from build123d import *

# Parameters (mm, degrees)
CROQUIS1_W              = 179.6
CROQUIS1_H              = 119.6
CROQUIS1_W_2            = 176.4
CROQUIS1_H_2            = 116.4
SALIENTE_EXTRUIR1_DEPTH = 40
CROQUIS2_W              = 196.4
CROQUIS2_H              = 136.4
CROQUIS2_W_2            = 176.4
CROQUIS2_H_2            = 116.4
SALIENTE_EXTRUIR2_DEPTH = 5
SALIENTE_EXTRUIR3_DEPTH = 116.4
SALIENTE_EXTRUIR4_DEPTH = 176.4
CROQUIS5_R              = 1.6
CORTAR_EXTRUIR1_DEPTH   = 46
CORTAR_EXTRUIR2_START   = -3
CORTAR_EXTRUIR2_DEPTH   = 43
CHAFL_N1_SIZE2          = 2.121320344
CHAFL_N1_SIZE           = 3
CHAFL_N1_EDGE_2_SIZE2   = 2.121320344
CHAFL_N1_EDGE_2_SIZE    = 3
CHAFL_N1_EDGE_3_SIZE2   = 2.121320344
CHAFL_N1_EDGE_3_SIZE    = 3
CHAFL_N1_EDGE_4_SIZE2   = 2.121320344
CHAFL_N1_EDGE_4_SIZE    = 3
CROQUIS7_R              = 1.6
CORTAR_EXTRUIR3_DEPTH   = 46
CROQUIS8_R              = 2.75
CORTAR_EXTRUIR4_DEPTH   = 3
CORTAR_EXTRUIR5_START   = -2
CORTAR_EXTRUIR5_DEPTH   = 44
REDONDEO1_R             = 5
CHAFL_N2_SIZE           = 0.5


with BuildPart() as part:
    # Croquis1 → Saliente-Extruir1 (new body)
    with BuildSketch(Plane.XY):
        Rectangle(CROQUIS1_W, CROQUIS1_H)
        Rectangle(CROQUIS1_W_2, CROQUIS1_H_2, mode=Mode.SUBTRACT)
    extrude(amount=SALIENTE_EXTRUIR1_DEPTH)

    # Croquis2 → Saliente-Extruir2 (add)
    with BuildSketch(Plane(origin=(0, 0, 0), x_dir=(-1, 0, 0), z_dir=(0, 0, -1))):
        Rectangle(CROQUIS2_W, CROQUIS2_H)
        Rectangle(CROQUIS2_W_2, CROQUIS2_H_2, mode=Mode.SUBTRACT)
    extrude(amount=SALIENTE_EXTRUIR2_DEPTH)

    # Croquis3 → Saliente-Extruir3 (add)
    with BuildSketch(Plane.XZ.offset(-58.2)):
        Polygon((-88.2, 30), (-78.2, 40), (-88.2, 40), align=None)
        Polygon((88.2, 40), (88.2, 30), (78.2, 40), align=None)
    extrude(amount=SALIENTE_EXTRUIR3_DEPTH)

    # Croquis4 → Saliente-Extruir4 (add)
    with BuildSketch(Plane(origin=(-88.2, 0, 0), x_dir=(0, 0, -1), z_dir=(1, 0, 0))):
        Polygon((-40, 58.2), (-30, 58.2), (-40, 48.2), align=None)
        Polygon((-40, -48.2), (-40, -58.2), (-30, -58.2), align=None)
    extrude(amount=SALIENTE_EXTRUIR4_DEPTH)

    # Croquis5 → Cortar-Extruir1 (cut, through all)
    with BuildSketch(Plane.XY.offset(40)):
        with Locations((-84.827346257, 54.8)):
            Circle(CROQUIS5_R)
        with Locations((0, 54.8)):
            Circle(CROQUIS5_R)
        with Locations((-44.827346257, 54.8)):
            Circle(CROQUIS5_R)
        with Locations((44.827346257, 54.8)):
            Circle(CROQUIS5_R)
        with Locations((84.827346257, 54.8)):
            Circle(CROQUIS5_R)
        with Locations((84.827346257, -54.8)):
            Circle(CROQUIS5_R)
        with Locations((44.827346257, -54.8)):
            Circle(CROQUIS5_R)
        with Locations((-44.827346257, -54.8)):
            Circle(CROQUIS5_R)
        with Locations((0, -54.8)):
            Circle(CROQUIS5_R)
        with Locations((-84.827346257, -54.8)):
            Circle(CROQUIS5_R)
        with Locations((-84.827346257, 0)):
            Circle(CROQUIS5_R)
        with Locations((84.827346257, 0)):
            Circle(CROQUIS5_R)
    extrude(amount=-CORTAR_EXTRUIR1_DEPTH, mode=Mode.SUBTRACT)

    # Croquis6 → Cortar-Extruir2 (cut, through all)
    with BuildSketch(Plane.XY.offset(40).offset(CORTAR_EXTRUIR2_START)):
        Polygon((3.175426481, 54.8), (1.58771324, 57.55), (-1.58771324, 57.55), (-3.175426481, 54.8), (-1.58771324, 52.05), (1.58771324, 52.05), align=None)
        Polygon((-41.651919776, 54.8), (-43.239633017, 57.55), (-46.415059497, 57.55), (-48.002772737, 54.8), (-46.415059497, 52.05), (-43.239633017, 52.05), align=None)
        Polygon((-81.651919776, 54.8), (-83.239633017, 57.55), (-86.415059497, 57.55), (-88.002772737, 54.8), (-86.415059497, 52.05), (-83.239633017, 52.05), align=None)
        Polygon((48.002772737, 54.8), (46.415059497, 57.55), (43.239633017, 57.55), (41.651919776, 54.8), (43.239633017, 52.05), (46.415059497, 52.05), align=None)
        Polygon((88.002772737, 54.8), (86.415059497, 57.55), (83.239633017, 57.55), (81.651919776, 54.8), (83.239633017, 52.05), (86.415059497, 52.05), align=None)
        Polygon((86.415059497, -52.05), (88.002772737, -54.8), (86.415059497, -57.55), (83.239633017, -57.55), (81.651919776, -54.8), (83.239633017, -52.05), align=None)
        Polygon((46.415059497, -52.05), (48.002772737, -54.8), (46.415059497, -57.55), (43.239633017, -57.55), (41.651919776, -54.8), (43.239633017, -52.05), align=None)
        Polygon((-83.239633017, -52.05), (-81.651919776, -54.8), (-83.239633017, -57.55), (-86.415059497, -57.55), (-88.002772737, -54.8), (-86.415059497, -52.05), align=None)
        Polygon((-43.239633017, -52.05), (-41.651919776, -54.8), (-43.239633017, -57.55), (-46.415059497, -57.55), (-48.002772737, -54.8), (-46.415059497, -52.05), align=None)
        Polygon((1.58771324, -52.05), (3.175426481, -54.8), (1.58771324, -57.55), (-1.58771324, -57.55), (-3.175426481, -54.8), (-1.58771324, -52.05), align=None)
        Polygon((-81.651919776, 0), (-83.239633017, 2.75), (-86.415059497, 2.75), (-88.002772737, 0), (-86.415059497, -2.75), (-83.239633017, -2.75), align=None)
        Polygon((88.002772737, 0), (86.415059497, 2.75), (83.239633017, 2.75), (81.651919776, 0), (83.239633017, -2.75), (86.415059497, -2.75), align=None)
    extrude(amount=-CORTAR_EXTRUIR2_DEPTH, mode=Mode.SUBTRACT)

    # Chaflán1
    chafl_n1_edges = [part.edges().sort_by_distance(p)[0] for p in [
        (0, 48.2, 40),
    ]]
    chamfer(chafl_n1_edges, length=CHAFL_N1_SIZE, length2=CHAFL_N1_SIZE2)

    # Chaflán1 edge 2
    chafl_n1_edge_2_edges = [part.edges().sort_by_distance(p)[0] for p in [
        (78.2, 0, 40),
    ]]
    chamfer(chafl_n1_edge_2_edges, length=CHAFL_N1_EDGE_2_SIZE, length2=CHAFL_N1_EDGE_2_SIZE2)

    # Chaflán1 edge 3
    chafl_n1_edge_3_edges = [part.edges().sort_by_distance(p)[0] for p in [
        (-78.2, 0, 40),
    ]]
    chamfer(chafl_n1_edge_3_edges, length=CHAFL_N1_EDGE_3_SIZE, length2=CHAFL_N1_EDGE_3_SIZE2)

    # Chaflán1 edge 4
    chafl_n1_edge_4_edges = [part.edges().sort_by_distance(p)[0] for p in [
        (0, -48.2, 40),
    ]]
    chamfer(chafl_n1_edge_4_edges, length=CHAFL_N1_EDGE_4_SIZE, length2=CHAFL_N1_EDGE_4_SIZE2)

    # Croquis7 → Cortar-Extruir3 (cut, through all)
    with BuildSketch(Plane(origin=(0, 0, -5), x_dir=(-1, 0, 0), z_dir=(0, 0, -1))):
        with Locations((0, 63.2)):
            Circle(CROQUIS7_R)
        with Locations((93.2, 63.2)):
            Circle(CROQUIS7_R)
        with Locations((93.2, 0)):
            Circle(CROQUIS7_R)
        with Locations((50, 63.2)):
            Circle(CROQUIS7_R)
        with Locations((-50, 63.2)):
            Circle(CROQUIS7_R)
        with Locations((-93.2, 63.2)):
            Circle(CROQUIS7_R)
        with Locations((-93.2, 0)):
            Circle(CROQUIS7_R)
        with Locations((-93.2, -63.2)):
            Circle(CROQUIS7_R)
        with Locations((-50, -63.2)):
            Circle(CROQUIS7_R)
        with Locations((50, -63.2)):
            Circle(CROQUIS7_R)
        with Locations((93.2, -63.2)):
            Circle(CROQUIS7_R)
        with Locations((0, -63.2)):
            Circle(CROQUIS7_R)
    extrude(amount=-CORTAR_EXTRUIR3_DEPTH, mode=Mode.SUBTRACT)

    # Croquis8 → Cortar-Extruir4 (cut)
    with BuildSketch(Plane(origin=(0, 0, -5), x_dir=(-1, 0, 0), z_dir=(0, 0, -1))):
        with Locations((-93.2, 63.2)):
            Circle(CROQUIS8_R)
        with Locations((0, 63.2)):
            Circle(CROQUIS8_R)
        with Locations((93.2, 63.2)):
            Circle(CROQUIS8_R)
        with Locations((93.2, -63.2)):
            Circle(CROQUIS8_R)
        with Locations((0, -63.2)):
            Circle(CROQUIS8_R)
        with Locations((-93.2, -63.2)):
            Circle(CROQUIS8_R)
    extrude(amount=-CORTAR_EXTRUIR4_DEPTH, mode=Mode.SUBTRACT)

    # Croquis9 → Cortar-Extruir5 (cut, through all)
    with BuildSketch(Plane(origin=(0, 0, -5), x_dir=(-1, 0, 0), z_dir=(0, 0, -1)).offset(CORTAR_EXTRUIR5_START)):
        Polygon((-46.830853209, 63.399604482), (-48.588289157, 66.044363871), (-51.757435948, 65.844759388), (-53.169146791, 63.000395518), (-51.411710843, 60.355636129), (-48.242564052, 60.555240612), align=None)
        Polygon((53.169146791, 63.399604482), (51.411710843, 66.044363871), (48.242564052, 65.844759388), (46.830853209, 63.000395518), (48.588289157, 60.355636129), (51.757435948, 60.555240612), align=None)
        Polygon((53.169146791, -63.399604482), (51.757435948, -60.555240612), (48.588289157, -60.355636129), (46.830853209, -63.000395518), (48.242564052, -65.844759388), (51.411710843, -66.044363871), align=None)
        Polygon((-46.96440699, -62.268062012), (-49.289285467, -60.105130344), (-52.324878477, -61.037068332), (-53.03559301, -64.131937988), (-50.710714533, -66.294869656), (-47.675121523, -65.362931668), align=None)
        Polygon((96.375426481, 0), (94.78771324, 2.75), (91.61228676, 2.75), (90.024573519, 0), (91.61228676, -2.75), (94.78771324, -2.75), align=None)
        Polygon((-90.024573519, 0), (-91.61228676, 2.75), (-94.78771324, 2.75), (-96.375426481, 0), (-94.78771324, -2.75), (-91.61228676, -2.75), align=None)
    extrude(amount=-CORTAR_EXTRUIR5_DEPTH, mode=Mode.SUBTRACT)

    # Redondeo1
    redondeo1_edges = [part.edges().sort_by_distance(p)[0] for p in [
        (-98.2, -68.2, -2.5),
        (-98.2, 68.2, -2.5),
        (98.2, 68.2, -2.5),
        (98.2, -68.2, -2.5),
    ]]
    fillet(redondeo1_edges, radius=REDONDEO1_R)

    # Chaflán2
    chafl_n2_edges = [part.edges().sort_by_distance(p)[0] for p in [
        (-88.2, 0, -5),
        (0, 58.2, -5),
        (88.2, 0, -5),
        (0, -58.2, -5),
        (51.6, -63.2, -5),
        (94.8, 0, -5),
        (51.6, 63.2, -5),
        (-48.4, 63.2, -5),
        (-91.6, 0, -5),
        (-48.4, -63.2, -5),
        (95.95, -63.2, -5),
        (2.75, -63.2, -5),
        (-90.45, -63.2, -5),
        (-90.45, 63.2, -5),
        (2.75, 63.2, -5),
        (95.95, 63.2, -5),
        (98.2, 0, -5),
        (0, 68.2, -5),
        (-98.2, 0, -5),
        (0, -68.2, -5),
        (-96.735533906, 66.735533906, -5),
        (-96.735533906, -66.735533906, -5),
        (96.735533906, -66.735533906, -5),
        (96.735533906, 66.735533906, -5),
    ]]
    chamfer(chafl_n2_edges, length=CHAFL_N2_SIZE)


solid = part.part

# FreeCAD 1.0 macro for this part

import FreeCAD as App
import Part
import Sketcher

V = App.Vector
Q = App.Units.Quantity


def edges_at(feature, points):
    """Names of the edges that pass closest to the given points."""
    edges = feature.Shape.Edges
    near = lambda p: min(range(len(edges)), key=lambda i: edges[i].distToShape(Part.Vertex(*p))[0])
    return sorted({f"Edge{near(p) + 1}" for p in points})

doc = App.newDocument("Part")
params = doc.addObject("Spreadsheet::Sheet", "Params")
for row, (alias, value) in enumerate([
    ("sketch1_width", "179.6 mm"),
    ("sketch1_width2", "176.4 mm"),
    ("sketch1_height", "119.6 mm"),
    ("sketch1_height2", "116.4 mm"),
    ("pad1_length", "40 mm"),
    ("sketch2_width", "196.4 mm"),
    ("sketch2_width2", "176.4 mm"),
    ("sketch2_height", "136.4 mm"),
    ("sketch2_height2", "116.4 mm"),
    ("pad2_length", "5 mm"),
    ("sketch3_width", "10 mm"),
    ("pad3_length", "116.4 mm"),
    ("sketch4_width", "10 mm"),
    ("pad4_length", "176.4 mm"),
    ("sketch5_diameter", "3.2 mm"),
    ("chamfer_size", "3 mm"),
    ("chamfer_size2", "2.12132 mm"),
    ("chamfer2_size", "3 mm"),
    ("chamfer2_size2", "2.12132 mm"),
    ("chamfer3_size", "3 mm"),
    ("chamfer3_size2", "2.12132 mm"),
    ("chamfer4_size", "3 mm"),
    ("chamfer4_size2", "2.12132 mm"),
    ("sketch7_diameter", "3.2 mm"),
    ("sketch8_diameter", "5.5 mm"),
    ("pocket4_length", "3 mm"),
    ("fillet_radius", "5 mm"),
    ("chamfer5_size", "0.5 mm"),
], start=1):
    params.set(f"A{row}", alias)
    params.set(f"B{row}", "=" + value)
    params.setAlias(f"B{row}", alias)

body = doc.addObject("PartDesign::Body", "Body")

# Sketch on XY plane
sketch1 = body.newObject("Sketcher::SketchObject", "Sketch")
sketch1.AttachmentSupport = (doc.getObject("XY_Plane"), [""])
sketch1.MapMode = "FlatFace"
sketch1.addGeometry([
    Part.LineSegment(V(-90, 60, 0), V(-90, -60, 0)),  # 0
    Part.LineSegment(V(-90, -60, 0), V(90, -60, 0)),  # 1
    Part.LineSegment(V(90, -60, 0), V(90, 60, 0)),  # 2
    Part.LineSegment(V(90, 60, 0), V(-90, 60, 0)),  # 3
    Part.LineSegment(V(88, -58, 0), V(-88, -58, 0)),  # 4
    Part.LineSegment(V(-88, -58, 0), V(-88, 58, 0)),  # 5
    Part.LineSegment(V(-88, 58, 0), V(88, 58, 0)),  # 6
    Part.LineSegment(V(88, 58, 0), V(88, -58, 0)),  # 7
], False)
sketch1.addConstraint([
    Sketcher.Constraint("Coincident", 0, 2, 1, 1),
    Sketcher.Constraint("Coincident", 1, 2, 2, 1),
    Sketcher.Constraint("Coincident", 2, 2, 3, 1),
    Sketcher.Constraint("Coincident", 3, 2, 0, 1),
    Sketcher.Constraint("Coincident", 4, 2, 5, 1),
    Sketcher.Constraint("Coincident", 5, 2, 6, 1),
    Sketcher.Constraint("Coincident", 6, 2, 7, 1),
    Sketcher.Constraint("Coincident", 7, 2, 4, 1),
    Sketcher.Constraint("Vertical", 0),
    Sketcher.Constraint("Horizontal", 1),
    Sketcher.Constraint("Vertical", 2),
    Sketcher.Constraint("Horizontal", 3),
    Sketcher.Constraint("Horizontal", 4),
    Sketcher.Constraint("Vertical", 5),
    Sketcher.Constraint("Horizontal", 6),
    Sketcher.Constraint("Vertical", 7),
    Sketcher.Constraint("Symmetric", 0, 2, 2, 2, -1, 1),
    Sketcher.Constraint("Symmetric", 4, 2, 6, 2, -1, 1),
    Sketcher.Constraint("DistanceX", 1, 1, 1, 2, 179.6),
    Sketcher.Constraint("DistanceX", 4, 2, 4, 1, 176.4),
    Sketcher.Constraint("DistanceY", 0, 2, 0, 1, 119.6),
    Sketcher.Constraint("DistanceY", 5, 1, 5, 2, 116.4),
])
sketch1.setExpression("Constraints[18]", "Params.sketch1_width")
sketch1.setExpression("Constraints[19]", "Params.sketch1_width2")
sketch1.setExpression("Constraints[20]", "Params.sketch1_height")
sketch1.setExpression("Constraints[21]", "Params.sketch1_height2")
pad1 = body.newObject("PartDesign::Pad", "Pad")
pad1.Profile = sketch1
pad1.setExpression("Length", "Params.pad1_length")

# Sketch on XY plane
sketch2 = body.newObject("Sketcher::SketchObject", "Sketch001")
sketch2.AttachmentSupport = (doc.getObject("XY_Plane"), [""])
sketch2.MapMode = "FlatFace"
sketch2.addGeometry([
    Part.LineSegment(V(98, 68, 0), V(98, -68, 0)),  # 0
    Part.LineSegment(V(98, -68, 0), V(-98, -68, 0)),  # 1
    Part.LineSegment(V(-98, -68, 0), V(-98, 68, 0)),  # 2
    Part.LineSegment(V(-98, 68, 0), V(98, 68, 0)),  # 3
    Part.LineSegment(V(-88, -58, 0), V(88, -58, 0)),  # 4
    Part.LineSegment(V(88, -58, 0), V(88, 58, 0)),  # 5
    Part.LineSegment(V(88, 58, 0), V(-88, 58, 0)),  # 6
    Part.LineSegment(V(-88, 58, 0), V(-88, -58, 0)),  # 7
], False)
sketch2.addConstraint([
    Sketcher.Constraint("Coincident", 0, 2, 1, 1),
    Sketcher.Constraint("Coincident", 1, 2, 2, 1),
    Sketcher.Constraint("Coincident", 2, 2, 3, 1),
    Sketcher.Constraint("Coincident", 3, 2, 0, 1),
    Sketcher.Constraint("Coincident", 4, 2, 5, 1),
    Sketcher.Constraint("Coincident", 5, 2, 6, 1),
    Sketcher.Constraint("Coincident", 6, 2, 7, 1),
    Sketcher.Constraint("Coincident", 7, 2, 4, 1),
    Sketcher.Constraint("Vertical", 0),
    Sketcher.Constraint("Horizontal", 1),
    Sketcher.Constraint("Vertical", 2),
    Sketcher.Constraint("Horizontal", 3),
    Sketcher.Constraint("Horizontal", 4),
    Sketcher.Constraint("Vertical", 5),
    Sketcher.Constraint("Horizontal", 6),
    Sketcher.Constraint("Vertical", 7),
    Sketcher.Constraint("Symmetric", 0, 2, 2, 2, -1, 1),
    Sketcher.Constraint("Symmetric", 4, 2, 6, 2, -1, 1),
    Sketcher.Constraint("DistanceX", 1, 2, 1, 1, 196.4),
    Sketcher.Constraint("DistanceX", 4, 1, 4, 2, 176.4),
    Sketcher.Constraint("DistanceY", 0, 2, 0, 1, 136.4),
    Sketcher.Constraint("DistanceY", 5, 1, 5, 2, 116.4),
])
sketch2.setExpression("Constraints[18]", "Params.sketch2_width")
sketch2.setExpression("Constraints[19]", "Params.sketch2_width2")
sketch2.setExpression("Constraints[20]", "Params.sketch2_height")
sketch2.setExpression("Constraints[21]", "Params.sketch2_height2")
pad2 = body.newObject("PartDesign::Pad", "Pad001")
pad2.Profile = sketch2
pad2.setExpression("Length", "Params.pad2_length")
pad2.Reversed = True

# Sketch on XZ plane
sketch3 = body.newObject("Sketcher::SketchObject", "Sketch002")
sketch3.AttachmentSupport = (doc.getObject("XZ_Plane"), [""])
sketch3.MapMode = "FlatFace"
sketch3.AttachmentOffset = App.Placement(V(0, 0, -58.2), App.Rotation())
sketch3.addGeometry([
    Part.LineSegment(V(-88, 30, 0), V(-78, 40, 0)),  # 0
    Part.LineSegment(V(-78, 40, 0), V(-88, 40, 0)),  # 1
    Part.LineSegment(V(-88, 40, 0), V(-88, 30, 0)),  # 2
    Part.LineSegment(V(88, 30, 0), V(88, 40, 0)),  # 3
    Part.LineSegment(V(88, 40, 0), V(78, 40, 0)),  # 4
    Part.LineSegment(V(78, 40, 0), V(88, 30, 0)),  # 5
], False)
sketch3.addConstraint([
    Sketcher.Constraint("Coincident", 0, 2, 1, 1),
    Sketcher.Constraint("Coincident", 1, 2, 2, 1),
    Sketcher.Constraint("Coincident", 2, 2, 0, 1),
    Sketcher.Constraint("Coincident", 3, 2, 4, 1),
    Sketcher.Constraint("Coincident", 4, 2, 5, 1),
    Sketcher.Constraint("Coincident", 5, 2, 3, 1),
    Sketcher.Constraint("Horizontal", 1),
    Sketcher.Constraint("Vertical", 2),
    Sketcher.Constraint("Vertical", 3),
    Sketcher.Constraint("Horizontal", 4),
    Sketcher.Constraint("Symmetric", 1, 2, 3, 2, -2),
    Sketcher.Constraint("Perpendicular", 0, 5),
    Sketcher.Constraint("Horizontal", 2, 2, 5, 2),
    Sketcher.Constraint("Equal", 1, 4),
    Sketcher.Constraint("DistanceX", 1, 2, 1, 1, 10.0),
    Sketcher.Constraint("DistanceY", -1, 1, 0, 2, 40.0),
    Sketcher.Constraint("DistanceX", 0, 2, -1, 1, 78.2),
])
sketch3.setExpression("Constraints[14]", "Params.sketch3_width")
pad3 = body.newObject("PartDesign::Pad", "Pad002")
pad3.Profile = sketch3
pad3.setExpression("Length", "Params.pad3_length")

# Sketch on YZ plane
sketch4 = body.newObject("Sketcher::SketchObject", "Sketch003")
sketch4.AttachmentSupport = (doc.getObject("YZ_Plane"), [""])
sketch4.MapMode = "FlatFace"
sketch4.AttachmentOffset = App.Placement(V(0, 0, -88.2), App.Rotation())
sketch4.addGeometry([
    Part.LineSegment(V(58, 30, 0), V(58, 40, 0)),  # 0
    Part.LineSegment(V(58, 40, 0), V(48, 40, 0)),  # 1
    Part.LineSegment(V(48, 40, 0), V(58, 30, 0)),  # 2
    Part.LineSegment(V(-48, 40, 0), V(-58, 40, 0)),  # 3
    Part.LineSegment(V(-58, 40, 0), V(-58, 30, 0)),  # 4
    Part.LineSegment(V(-58, 30, 0), V(-48, 40, 0)),  # 5
], False)
sketch4.addConstraint([
    Sketcher.Constraint("Coincident", 0, 2, 1, 1),
    Sketcher.Constraint("Coincident", 1, 2, 2, 1),
    Sketcher.Constraint("Coincident", 2, 2, 0, 1),
    Sketcher.Constraint("Coincident", 3, 2, 4, 1),
    Sketcher.Constraint("Coincident", 4, 2, 5, 1),
    Sketcher.Constraint("Coincident", 5, 2, 3, 1),
    Sketcher.Constraint("Vertical", 0),
    Sketcher.Constraint("Horizontal", 1),
    Sketcher.Constraint("Horizontal", 3),
    Sketcher.Constraint("Vertical", 4),
    Sketcher.Constraint("Symmetric", 0, 2, 3, 2, -2),
    Sketcher.Constraint("Perpendicular", 2, 5),
    Sketcher.Constraint("Horizontal", 2, 2, 4, 2),
    Sketcher.Constraint("Equal", 1, 3),
    Sketcher.Constraint("DistanceX", 1, 2, 1, 1, 10.0),
    Sketcher.Constraint("DistanceY", -1, 1, 0, 2, 40.0),
    Sketcher.Constraint("DistanceX", -1, 1, 0, 2, 58.2),
])
sketch4.setExpression("Constraints[14]", "Params.sketch4_width")
pad4 = body.newObject("PartDesign::Pad", "Pad003")
pad4.Profile = sketch4
pad4.setExpression("Length", "Params.pad4_length")

# Sketch on XY plane
sketch5 = body.newObject("Sketcher::SketchObject", "Sketch004")
sketch5.AttachmentSupport = (doc.getObject("XY_Plane"), [""])
sketch5.MapMode = "FlatFace"
sketch5.AttachmentOffset = App.Placement(V(0, 0, 40), App.Rotation())
sketch5.addGeometry([
    Part.Circle(V(-84.8, 54.8, 0), V(0, 0, 1), 1.6),  # 0
    Part.Circle(V(0, 54.8, 0), V(0, 0, 1), 1.6),  # 1
    Part.Circle(V(-44.8, 54.8, 0), V(0, 0, 1), 1.6),  # 2
    Part.Circle(V(44.8, 54.8, 0), V(0, 0, 1), 1.6),  # 3
    Part.Circle(V(84.8, 54.8, 0), V(0, 0, 1), 1.6),  # 4
    Part.Circle(V(84.8, -54.8, 0), V(0, 0, 1), 1.6),  # 5
    Part.Circle(V(44.8, -54.8, 0), V(0, 0, 1), 1.6),  # 6
    Part.Circle(V(-44.8, -54.8, 0), V(0, 0, 1), 1.6),  # 7
    Part.Circle(V(0, -54.8, 0), V(0, 0, 1), 1.6),  # 8
    Part.Circle(V(-84.8, -54.8, 0), V(0, 0, 1), 1.6),  # 9
    Part.Circle(V(-84.8, 0, 0), V(0, 0, 1), 1.6),  # 10
    Part.Circle(V(84.8, 0, 0), V(0, 0, 1), 1.6),  # 11
], False)
sketch5.addConstraint([
    Sketcher.Constraint("Equal", 0, 1),
    Sketcher.Constraint("Equal", 1, 2),
    Sketcher.Constraint("Equal", 2, 3),
    Sketcher.Constraint("Equal", 3, 4),
    Sketcher.Constraint("Equal", 4, 5),
    Sketcher.Constraint("Equal", 5, 6),
    Sketcher.Constraint("Equal", 6, 7),
    Sketcher.Constraint("Equal", 7, 8),
    Sketcher.Constraint("Equal", 8, 9),
    Sketcher.Constraint("Equal", 9, 10),
    Sketcher.Constraint("Equal", 10, 11),
    Sketcher.Constraint("Symmetric", 0, 3, 5, 3, -1, 1),
    Sketcher.Constraint("Symmetric", 2, 3, 6, 3, -1, 1),
    Sketcher.Constraint("Symmetric", 3, 3, 7, 3, -1, 1),
    Sketcher.Constraint("Symmetric", 1, 3, 8, 3, -1, 1),
    Sketcher.Constraint("Symmetric", 4, 3, 9, 3, -1, 1),
    Sketcher.Constraint("Symmetric", 10, 3, 11, 3, -1, 1),
    Sketcher.Constraint("Symmetric", 2, 3, 3, 3, -2),
    Sketcher.Constraint("Symmetric", 0, 3, 4, 3, -2),
    Sketcher.Constraint("PointOnObject", 1, 3, -2),
    Sketcher.Constraint("PointOnObject", 10, 3, -1),
    Sketcher.Constraint("Horizontal", 0, 3, 1, 3),
    Sketcher.Constraint("Horizontal", 1, 3, 2, 3),
    Sketcher.Constraint("Vertical", 9, 3, 10, 3),
    Sketcher.Constraint("Diameter", 0, 3.2),
    Sketcher.Constraint("DistanceX", 0, 3, 2, 3, 40.0),
    Sketcher.Constraint("DistanceY", -1, 1, 0, 3, 54.8),
    Sketcher.Constraint("DistanceX", 0, 3, -1, 1, 84.827346),
])
sketch5.setExpression("Constraints[24]", "Params.sketch5_diameter")
pocket1 = body.newObject("PartDesign::Pocket", "Pocket")
pocket1.Profile = sketch5
pocket1.Type = "ThroughAll"

# Sketch on XY plane
sketch6 = body.newObject("Sketcher::SketchObject", "Sketch005")
sketch6.AttachmentSupport = (doc.getObject("XY_Plane"), [""])
sketch6.MapMode = "FlatFace"
sketch6.AttachmentOffset = App.Placement(V(0, 0, 37), App.Rotation())
sketch6.addGeometry([
    Part.LineSegment(V(3.2, 54.8, 0), V(1.6, 57.5, 0)),  # 0
    Part.LineSegment(V(1.6, 57.5, 0), V(-1.6, 57.5, 0)),  # 1
    Part.LineSegment(V(-1.6, 57.5, 0), V(-3.2, 54.8, 0)),  # 2
    Part.LineSegment(V(-3.2, 54.8, 0), V(-1.6, 52, 0)),  # 3
    Part.LineSegment(V(-1.6, 52, 0), V(1.6, 52, 0)),  # 4
    Part.LineSegment(V(1.6, 52, 0), V(3.2, 54.8, 0)),  # 5
    Part.LineSegment(V(-41.7, 54.8, 0), V(-43.2, 57.5, 0)),  # 6
    Part.LineSegment(V(-43.2, 57.5, 0), V(-46.4, 57.5, 0)),  # 7
    Part.LineSegment(V(-46.4, 57.5, 0), V(-48, 54.8, 0)),  # 8
    Part.LineSegment(V(-48, 54.8, 0), V(-46.4, 52, 0)),  # 9
    Part.LineSegment(V(-46.4, 52, 0), V(-43.2, 52, 0)),  # 10
    Part.LineSegment(V(-43.2, 52, 0), V(-41.7, 54.8, 0)),  # 11
    Part.LineSegment(V(-81.7, 54.8, 0), V(-83.2, 57.5, 0)),  # 12
    Part.LineSegment(V(-83.2, 57.5, 0), V(-86.4, 57.5, 0)),  # 13
    Part.LineSegment(V(-86.4, 57.5, 0), V(-88, 54.8, 0)),  # 14
    Part.LineSegment(V(-88, 54.8, 0), V(-86.4, 52, 0)),  # 15
    Part.LineSegment(V(-86.4, 52, 0), V(-83.2, 52, 0)),  # 16
    Part.LineSegment(V(-83.2, 52, 0), V(-81.7, 54.8, 0)),  # 17
    Part.LineSegment(V(48, 54.8, 0), V(46.4, 57.5, 0)),  # 18
    Part.LineSegment(V(46.4, 57.5, 0), V(43.2, 57.5, 0)),  # 19
    Part.LineSegment(V(43.2, 57.5, 0), V(41.7, 54.8, 0)),  # 20
    Part.LineSegment(V(41.7, 54.8, 0), V(43.2, 52, 0)),  # 21
    Part.LineSegment(V(43.2, 52, 0), V(46.4, 52, 0)),  # 22
    Part.LineSegment(V(46.4, 52, 0), V(48, 54.8, 0)),  # 23
    Part.LineSegment(V(88, 54.8, 0), V(86.4, 57.5, 0)),  # 24
    Part.LineSegment(V(86.4, 57.5, 0), V(83.2, 57.5, 0)),  # 25
    Part.LineSegment(V(83.2, 57.5, 0), V(81.7, 54.8, 0)),  # 26
    Part.LineSegment(V(81.7, 54.8, 0), V(83.2, 52, 0)),  # 27
    Part.LineSegment(V(83.2, 52, 0), V(86.4, 52, 0)),  # 28
    Part.LineSegment(V(86.4, 52, 0), V(88, 54.8, 0)),  # 29
    Part.LineSegment(V(88, -54.8, 0), V(86.4, -52, 0)),  # 30
    Part.LineSegment(V(86.4, -52, 0), V(83.2, -52, 0)),  # 31
    Part.LineSegment(V(83.2, -52, 0), V(81.7, -54.8, 0)),  # 32
    Part.LineSegment(V(81.7, -54.8, 0), V(83.2, -57.5, 0)),  # 33
    Part.LineSegment(V(83.2, -57.5, 0), V(86.4, -57.5, 0)),  # 34
    Part.LineSegment(V(86.4, -57.5, 0), V(88, -54.8, 0)),  # 35
    Part.LineSegment(V(48, -54.8, 0), V(46.4, -52, 0)),  # 36
    Part.LineSegment(V(46.4, -52, 0), V(43.2, -52, 0)),  # 37
    Part.LineSegment(V(43.2, -52, 0), V(41.7, -54.8, 0)),  # 38
    Part.LineSegment(V(41.7, -54.8, 0), V(43.2, -57.5, 0)),  # 39
    Part.LineSegment(V(43.2, -57.5, 0), V(46.4, -57.5, 0)),  # 40
    Part.LineSegment(V(46.4, -57.5, 0), V(48, -54.8, 0)),  # 41
    Part.LineSegment(V(-81.7, -54.8, 0), V(-83.2, -52, 0)),  # 42
    Part.LineSegment(V(-83.2, -52, 0), V(-86.4, -52, 0)),  # 43
    Part.LineSegment(V(-86.4, -52, 0), V(-88, -54.8, 0)),  # 44
    Part.LineSegment(V(-88, -54.8, 0), V(-86.4, -57.5, 0)),  # 45
    Part.LineSegment(V(-86.4, -57.5, 0), V(-83.2, -57.5, 0)),  # 46
    Part.LineSegment(V(-83.2, -57.5, 0), V(-81.7, -54.8, 0)),  # 47
    Part.LineSegment(V(-41.7, -54.8, 0), V(-43.2, -52, 0)),  # 48
    Part.LineSegment(V(-43.2, -52, 0), V(-46.4, -52, 0)),  # 49
    Part.LineSegment(V(-46.4, -52, 0), V(-48, -54.8, 0)),  # 50
    Part.LineSegment(V(-48, -54.8, 0), V(-46.4, -57.5, 0)),  # 51
    Part.LineSegment(V(-46.4, -57.5, 0), V(-43.2, -57.5, 0)),  # 52
    Part.LineSegment(V(-43.2, -57.5, 0), V(-41.7, -54.8, 0)),  # 53
    Part.LineSegment(V(3.2, -54.8, 0), V(1.6, -52, 0)),  # 54
    Part.LineSegment(V(1.6, -52, 0), V(-1.6, -52, 0)),  # 55
    Part.LineSegment(V(-1.6, -52, 0), V(-3.2, -54.8, 0)),  # 56
    Part.LineSegment(V(-3.2, -54.8, 0), V(-1.6, -57.5, 0)),  # 57
    Part.LineSegment(V(-1.6, -57.5, 0), V(1.6, -57.5, 0)),  # 58
    Part.LineSegment(V(1.6, -57.5, 0), V(3.2, -54.8, 0)),  # 59
    Part.LineSegment(V(-81.7, 0, 0), V(-83.2, 2.8, 0)),  # 60
    Part.LineSegment(V(-83.2, 2.8, 0), V(-86.4, 2.8, 0)),  # 61
    Part.LineSegment(V(-86.4, 2.8, 0), V(-88, 0, 0)),  # 62
    Part.LineSegment(V(-88, 0, 0), V(-86.4, -2.8, 0)),  # 63
    Part.LineSegment(V(-86.4, -2.8, 0), V(-83.2, -2.8, 0)),  # 64
    Part.LineSegment(V(-83.2, -2.8, 0), V(-81.7, 0, 0)),  # 65
    Part.LineSegment(V(88, 0, 0), V(86.4, 2.8, 0)),  # 66
    Part.LineSegment(V(86.4, 2.8, 0), V(83.2, 2.8, 0)),  # 67
    Part.LineSegment(V(83.2, 2.8, 0), V(81.7, 0, 0)),  # 68
    Part.LineSegment(V(81.7, 0, 0), V(83.2, -2.8, 0)),  # 69
    Part.LineSegment(V(83.2, -2.8, 0), V(86.4, -2.8, 0)),  # 70
    Part.LineSegment(V(86.4, -2.8, 0), V(88, 0, 0)),  # 71
], False)
sketch6.addConstraint([
    Sketcher.Constraint("Coincident", 0, 2, 1, 1),
    Sketcher.Constraint("Coincident", 1, 2, 2, 1),
    Sketcher.Constraint("Coincident", 2, 2, 3, 1),
    Sketcher.Constraint("Coincident", 3, 2, 4, 1),
    Sketcher.Constraint("Coincident", 4, 2, 5, 1),
    Sketcher.Constraint("Coincident", 5, 2, 0, 1),
    Sketcher.Constraint("Coincident", 6, 2, 7, 1),
    Sketcher.Constraint("Coincident", 7, 2, 8, 1),
    Sketcher.Constraint("Coincident", 8, 2, 9, 1),
    Sketcher.Constraint("Coincident", 9, 2, 10, 1),
    Sketcher.Constraint("Coincident", 10, 2, 11, 1),
    Sketcher.Constraint("Coincident", 11, 2, 6, 1),
    Sketcher.Constraint("Coincident", 12, 2, 13, 1),
    Sketcher.Constraint("Coincident", 13, 2, 14, 1),
    Sketcher.Constraint("Coincident", 14, 2, 15, 1),
    Sketcher.Constraint("Coincident", 15, 2, 16, 1),
    Sketcher.Constraint("Coincident", 16, 2, 17, 1),
    Sketcher.Constraint("Coincident", 17, 2, 12, 1),
    Sketcher.Constraint("Coincident", 18, 2, 19, 1),
    Sketcher.Constraint("Coincident", 19, 2, 20, 1),
    Sketcher.Constraint("Coincident", 20, 2, 21, 1),
    Sketcher.Constraint("Coincident", 21, 2, 22, 1),
    Sketcher.Constraint("Coincident", 22, 2, 23, 1),
    Sketcher.Constraint("Coincident", 23, 2, 18, 1),
    Sketcher.Constraint("Coincident", 24, 2, 25, 1),
    Sketcher.Constraint("Coincident", 25, 2, 26, 1),
    Sketcher.Constraint("Coincident", 26, 2, 27, 1),
    Sketcher.Constraint("Coincident", 27, 2, 28, 1),
    Sketcher.Constraint("Coincident", 28, 2, 29, 1),
    Sketcher.Constraint("Coincident", 29, 2, 24, 1),
    Sketcher.Constraint("Coincident", 30, 2, 31, 1),
    Sketcher.Constraint("Coincident", 31, 2, 32, 1),
    Sketcher.Constraint("Coincident", 32, 2, 33, 1),
    Sketcher.Constraint("Coincident", 33, 2, 34, 1),
    Sketcher.Constraint("Coincident", 34, 2, 35, 1),
    Sketcher.Constraint("Coincident", 35, 2, 30, 1),
    Sketcher.Constraint("Coincident", 36, 2, 37, 1),
    Sketcher.Constraint("Coincident", 37, 2, 38, 1),
    Sketcher.Constraint("Coincident", 38, 2, 39, 1),
    Sketcher.Constraint("Coincident", 39, 2, 40, 1),
    Sketcher.Constraint("Coincident", 40, 2, 41, 1),
    Sketcher.Constraint("Coincident", 41, 2, 36, 1),
    Sketcher.Constraint("Coincident", 42, 2, 43, 1),
    Sketcher.Constraint("Coincident", 43, 2, 44, 1),
    Sketcher.Constraint("Coincident", 44, 2, 45, 1),
    Sketcher.Constraint("Coincident", 45, 2, 46, 1),
    Sketcher.Constraint("Coincident", 46, 2, 47, 1),
    Sketcher.Constraint("Coincident", 47, 2, 42, 1),
    Sketcher.Constraint("Coincident", 48, 2, 49, 1),
    Sketcher.Constraint("Coincident", 49, 2, 50, 1),
    Sketcher.Constraint("Coincident", 50, 2, 51, 1),
    Sketcher.Constraint("Coincident", 51, 2, 52, 1),
    Sketcher.Constraint("Coincident", 52, 2, 53, 1),
    Sketcher.Constraint("Coincident", 53, 2, 48, 1),
    Sketcher.Constraint("Coincident", 54, 2, 55, 1),
    Sketcher.Constraint("Coincident", 55, 2, 56, 1),
    Sketcher.Constraint("Coincident", 56, 2, 57, 1),
    Sketcher.Constraint("Coincident", 57, 2, 58, 1),
    Sketcher.Constraint("Coincident", 58, 2, 59, 1),
    Sketcher.Constraint("Coincident", 59, 2, 54, 1),
    Sketcher.Constraint("Coincident", 60, 2, 61, 1),
    Sketcher.Constraint("Coincident", 61, 2, 62, 1),
    Sketcher.Constraint("Coincident", 62, 2, 63, 1),
    Sketcher.Constraint("Coincident", 63, 2, 64, 1),
    Sketcher.Constraint("Coincident", 64, 2, 65, 1),
    Sketcher.Constraint("Coincident", 65, 2, 60, 1),
    Sketcher.Constraint("Coincident", 66, 2, 67, 1),
    Sketcher.Constraint("Coincident", 67, 2, 68, 1),
    Sketcher.Constraint("Coincident", 68, 2, 69, 1),
    Sketcher.Constraint("Coincident", 69, 2, 70, 1),
    Sketcher.Constraint("Coincident", 70, 2, 71, 1),
    Sketcher.Constraint("Coincident", 71, 2, 66, 1),
    Sketcher.Constraint("Horizontal", 1),
    Sketcher.Constraint("Horizontal", 4),
    Sketcher.Constraint("Horizontal", 7),
    Sketcher.Constraint("Horizontal", 10),
    Sketcher.Constraint("Horizontal", 13),
    Sketcher.Constraint("Horizontal", 16),
    Sketcher.Constraint("Horizontal", 19),
    Sketcher.Constraint("Horizontal", 22),
    Sketcher.Constraint("Horizontal", 25),
    Sketcher.Constraint("Horizontal", 28),
    Sketcher.Constraint("Horizontal", 31),
    Sketcher.Constraint("Horizontal", 34),
    Sketcher.Constraint("Horizontal", 37),
    Sketcher.Constraint("Horizontal", 40),
    Sketcher.Constraint("Horizontal", 43),
    Sketcher.Constraint("Horizontal", 46),
    Sketcher.Constraint("Horizontal", 49),
    Sketcher.Constraint("Horizontal", 52),
    Sketcher.Constraint("Horizontal", 55),
    Sketcher.Constraint("Horizontal", 58),
    Sketcher.Constraint("Horizontal", 61),
    Sketcher.Constraint("Horizontal", 64),
    Sketcher.Constraint("Horizontal", 67),
    Sketcher.Constraint("Horizontal", 70),
    Sketcher.Constraint("Symmetric", 15, 2, 30, 2, -1, 1),
    Sketcher.Constraint("Symmetric", 17, 2, 32, 2, -1, 1),
    Sketcher.Constraint("Symmetric", 12, 2, 33, 2, -1, 1),
    Sketcher.Constraint("Symmetric", 14, 2, 35, 2, -1, 1),
    Sketcher.Constraint("Symmetric", 9, 2, 36, 2, -1, 1),
    Sketcher.Constraint("Symmetric", 11, 2, 38, 2, -1, 1),
    Sketcher.Constraint("Symmetric", 6, 2, 39, 2, -1, 1),
    Sketcher.Constraint("Symmetric", 8, 2, 41, 2, -1, 1),
    Sketcher.Constraint("Symmetric", 27, 2, 42, 2, -1, 1),
    Sketcher.Constraint("Symmetric", 29, 2, 44, 2, -1, 1),
    Sketcher.Constraint("Symmetric", 24, 2, 45, 2, -1, 1),
    Sketcher.Constraint("Symmetric", 26, 2, 47, 2, -1, 1),
    Sketcher.Constraint("Symmetric", 21, 2, 48, 2, -1, 1),
    Sketcher.Constraint("Symmetric", 23, 2, 50, 2, -1, 1),
    Sketcher.Constraint("Symmetric", 18, 2, 51, 2, -1, 1),
    Sketcher.Constraint("Symmetric", 20, 2, 53, 2, -1, 1),
    Sketcher.Constraint("Symmetric", 3, 2, 54, 2, -1, 1),
    Sketcher.Constraint("Symmetric", 5, 2, 56, 2, -1, 1),
    Sketcher.Constraint("Symmetric", 0, 2, 57, 2, -1, 1),
    Sketcher.Constraint("Symmetric", 2, 2, 59, 2, -1, 1),
    Sketcher.Constraint("Symmetric", 63, 2, 66, 2, -1, 1),
    Sketcher.Constraint("Symmetric", 65, 2, 68, 2, -1, 1),
    Sketcher.Constraint("Symmetric", 60, 2, 69, 2, -1, 1),
    Sketcher.Constraint("Symmetric", 62, 2, 71, 2, -1, 1),
    Sketcher.Constraint("Symmetric", 2, 2, 5, 2, -2),
    Sketcher.Constraint("Symmetric", 7, 2, 18, 2, -2),
    Sketcher.Constraint("Symmetric", 11, 2, 20, 2, -2),
    Sketcher.Constraint("Symmetric", 10, 2, 21, 2, -2),
    Sketcher.Constraint("Symmetric", 8, 2, 23, 2, -2),
    Sketcher.Constraint("Symmetric", 13, 2, 24, 2, -2),
    Sketcher.Constraint("Symmetric", 17, 2, 26, 2, -2),
    Sketcher.Constraint("Symmetric", 16, 2, 27, 2, -2),
    Sketcher.Constraint("Symmetric", 14, 2, 29, 2, -2),
    Sketcher.Constraint("Symmetric", 61, 2, 66, 2, -2),
    Sketcher.Constraint("PointOnObject", 62, 2, -1),
    Sketcher.Constraint("PointOnObject", 65, 2, -1),
    Sketcher.Constraint("Parallel", 0, 3),
    Sketcher.Constraint("Parallel", 2, 5),
    Sketcher.Constraint("Parallel", 3, 6),
    Sketcher.Constraint("Parallel", 5, 8),
    Sketcher.Constraint("Parallel", 6, 9),
    Sketcher.Constraint("Parallel", 8, 11),
    Sketcher.Constraint("Parallel", 9, 12),
    Sketcher.Constraint("Parallel", 11, 14),
    Sketcher.Constraint("Parallel", 12, 15),
    Sketcher.Constraint("Parallel", 14, 17),
    Sketcher.Constraint("Parallel", 15, 18),
    Sketcher.Constraint("Parallel", 17, 20),
    Sketcher.Constraint("Parallel", 20, 23),
    Sketcher.Constraint("Parallel", 23, 26),
    Sketcher.Constraint("Parallel", 26, 29),
    Sketcher.Constraint("Parallel", 29, 32),
    Sketcher.Constraint("Parallel", 32, 35),
    Sketcher.Constraint("Parallel", 35, 38),
    Sketcher.Constraint("Parallel", 38, 41),
    Sketcher.Constraint("Parallel", 41, 44),
    Sketcher.Constraint("Parallel", 44, 47),
    Sketcher.Constraint("Parallel", 47, 50),
    Sketcher.Constraint("Parallel", 50, 53),
    Sketcher.Constraint("Parallel", 53, 56),
    Sketcher.Constraint("Parallel", 56, 59),
    Sketcher.Constraint("Parallel", 57, 60),
    Sketcher.Constraint("Parallel", 59, 62),
    Sketcher.Constraint("Parallel", 62, 65),
    Sketcher.Constraint("Parallel", 65, 68),
    Sketcher.Constraint("Parallel", 68, 71),
    Sketcher.Constraint("Horizontal", 1, 2, 6, 2),
    Sketcher.Constraint("Horizontal", 5, 2, 8, 2),
    Sketcher.Constraint("Horizontal", 4, 2, 9, 2),
    Sketcher.Constraint("Horizontal", 8, 2, 11, 2),
    Sketcher.Constraint("Horizontal", 7, 2, 12, 2),
    Sketcher.Constraint("Horizontal", 11, 2, 14, 2),
    Sketcher.Constraint("Horizontal", 10, 2, 15, 2),
    Sketcher.Constraint("Horizontal", 14, 2, 17, 2),
    Sketcher.Constraint("Vertical", 1, 2, 3, 2),
    Sketcher.Constraint("Vertical", 46, 2, 60, 2),
    Sketcher.Constraint("Vertical", 45, 2, 61, 2),
    Sketcher.Constraint("Vertical", 44, 2, 62, 2),
    Sketcher.Constraint("Equal", 4, 7),
    Sketcher.Constraint("Equal", 10, 13),
    Sketcher.Constraint("Angle", 0, Q("120 deg")),
    Sketcher.Constraint("DistanceY", -1, 1, 2, 2, 54.8),
    Sketcher.Constraint("DistanceY", -1, 1, 0, 2, 57.55),
    Sketcher.Constraint("DistanceX", 1, 2, 1, 1, 3.175426),
    Sketcher.Constraint("DistanceX", 7, 2, -1, 1, 46.415059),
    Sketcher.Constraint("DistanceX", 13, 2, -1, 1, 86.415059),
])
pocket2 = body.newObject("PartDesign::Pocket", "Pocket001")
pocket2.Profile = sketch6
pocket2.Type = "ThroughAll"
doc.recompute()

chamfer = body.newObject("PartDesign::Chamfer", "Chamfer")
chamfer.Base = (pocket2, edges_at(pocket2, [(0, 48.2, 40)]))
chamfer.ChamferType = "Two distances"
chamfer.setExpression("Size", "Params.chamfer_size")
chamfer.setExpression("Size2", "Params.chamfer_size2")
doc.recompute()

chamfer2 = body.newObject("PartDesign::Chamfer", "Chamfer001")
chamfer2.Base = (chamfer, edges_at(chamfer, [(78.2, 1.5, 40)]))
chamfer2.ChamferType = "Two distances"
chamfer2.setExpression("Size", "Params.chamfer2_size")
chamfer2.setExpression("Size2", "Params.chamfer2_size2")
doc.recompute()

chamfer3 = body.newObject("PartDesign::Chamfer", "Chamfer002")
chamfer3.Base = (chamfer2, edges_at(chamfer2, [(-78.2, 1.5, 40)]))
chamfer3.ChamferType = "Two distances"
chamfer3.setExpression("Size", "Params.chamfer3_size")
chamfer3.setExpression("Size2", "Params.chamfer3_size2")
doc.recompute()

chamfer4 = body.newObject("PartDesign::Chamfer", "Chamfer003")
chamfer4.Base = (chamfer3, edges_at(chamfer3, [(0, -48.2, 40)]))
chamfer4.ChamferType = "Two distances"
chamfer4.setExpression("Size", "Params.chamfer4_size")
chamfer4.setExpression("Size2", "Params.chamfer4_size2")

# Sketch on XY plane
sketch7 = body.newObject("Sketcher::SketchObject", "Sketch006")
sketch7.AttachmentSupport = (doc.getObject("XY_Plane"), [""])
sketch7.MapMode = "FlatFace"
sketch7.AttachmentOffset = App.Placement(V(0, 0, -5), App.Rotation())
sketch7.addGeometry([
    Part.Circle(V(0, 63.2, 0), V(0, 0, 1), 1.6),  # 0
    Part.Circle(V(-93.2, 63.2, 0), V(0, 0, 1), 1.6),  # 1
    Part.Circle(V(-93.2, 0, 0), V(0, 0, 1), 1.6),  # 2
    Part.Circle(V(-50, 63.2, 0), V(0, 0, 1), 1.6),  # 3
    Part.Circle(V(50, 63.2, 0), V(0, 0, 1), 1.6),  # 4
    Part.Circle(V(93.2, 63.2, 0), V(0, 0, 1), 1.6),  # 5
    Part.Circle(V(93.2, 0, 0), V(0, 0, 1), 1.6),  # 6
    Part.Circle(V(93.2, -63.2, 0), V(0, 0, 1), 1.6),  # 7
    Part.Circle(V(50, -63.2, 0), V(0, 0, 1), 1.6),  # 8
    Part.Circle(V(-50, -63.2, 0), V(0, 0, 1), 1.6),  # 9
    Part.Circle(V(-93.2, -63.2, 0), V(0, 0, 1), 1.6),  # 10
    Part.Circle(V(0, -63.2, 0), V(0, 0, 1), 1.6),  # 11
], False)
sketch7.addConstraint([
    Sketcher.Constraint("Equal", 0, 1),
    Sketcher.Constraint("Equal", 1, 2),
    Sketcher.Constraint("Equal", 2, 3),
    Sketcher.Constraint("Equal", 3, 4),
    Sketcher.Constraint("Equal", 4, 5),
    Sketcher.Constraint("Equal", 5, 6),
    Sketcher.Constraint("Equal", 6, 7),
    Sketcher.Constraint("Equal", 7, 8),
    Sketcher.Constraint("Equal", 8, 9),
    Sketcher.Constraint("Equal", 9, 10),
    Sketcher.Constraint("Equal", 10, 11),
    Sketcher.Constraint("Symmetric", 2, 3, 6, 3, -1, 1),
    Sketcher.Constraint("Symmetric", 1, 3, 7, 3, -1, 1),
    Sketcher.Constraint("Symmetric", 3, 3, 8, 3, -1, 1),
    Sketcher.Constraint("Symmetric", 4, 3, 9, 3, -1, 1),
    Sketcher.Constraint("Symmetric", 5, 3, 10, 3, -1, 1),
    Sketcher.Constraint("Symmetric", 0, 3, 11, 3, -1, 1),
    Sketcher.Constraint("Symmetric", 3, 3, 4, 3, -2),
    Sketcher.Constraint("Symmetric", 1, 3, 5, 3, -2),
    Sketcher.Constraint("PointOnObject", 0, 3, -2),
    Sketcher.Constraint("PointOnObject", 2, 3, -1),
    Sketcher.Constraint("Horizontal", 0, 3, 1, 3),
    Sketcher.Constraint("Horizontal", 1, 3, 3, 3),
    Sketcher.Constraint("Vertical", 1, 3, 2, 3),
    Sketcher.Constraint("Diameter", 0, 3.2),
    Sketcher.Constraint("DistanceX", 3, 3, -1, 1, 50.0),
    Sketcher.Constraint("DistanceY", -1, 1, 0, 3, 63.2),
    Sketcher.Constraint("DistanceX", 1, 3, -1, 1, 93.2),
])
sketch7.setExpression("Constraints[24]", "Params.sketch7_diameter")
pocket3 = body.newObject("PartDesign::Pocket", "Pocket002")
pocket3.Profile = sketch7
pocket3.Type = "ThroughAll"
pocket3.Reversed = True

# Sketch on XY plane
sketch8 = body.newObject("Sketcher::SketchObject", "Sketch007")
sketch8.AttachmentSupport = (doc.getObject("XY_Plane"), [""])
sketch8.MapMode = "FlatFace"
sketch8.AttachmentOffset = App.Placement(V(0, 0, -5), App.Rotation())
sketch8.addGeometry([
    Part.Circle(V(93.2, 63.2, 0), V(0, 0, 1), 2.8),  # 0
    Part.Circle(V(0, 63.2, 0), V(0, 0, 1), 2.8),  # 1
    Part.Circle(V(-93.2, 63.2, 0), V(0, 0, 1), 2.8),  # 2
    Part.Circle(V(-93.2, -63.2, 0), V(0, 0, 1), 2.8),  # 3
    Part.Circle(V(0, -63.2, 0), V(0, 0, 1), 2.8),  # 4
    Part.Circle(V(93.2, -63.2, 0), V(0, 0, 1), 2.8),  # 5
], False)
sketch8.addConstraint([
    Sketcher.Constraint("Equal", 0, 1),
    Sketcher.Constraint("Equal", 1, 2),
    Sketcher.Constraint("Equal", 2, 3),
    Sketcher.Constraint("Equal", 3, 4),
    Sketcher.Constraint("Equal", 4, 5),
    Sketcher.Constraint("Symmetric", 0, 3, 3, 3, -1, 1),
    Sketcher.Constraint("Symmetric", 1, 3, 4, 3, -1, 1),
    Sketcher.Constraint("Symmetric", 2, 3, 5, 3, -1, 1),
    Sketcher.Constraint("Symmetric", 0, 3, 2, 3, -2),
    Sketcher.Constraint("PointOnObject", 1, 3, -2),
    Sketcher.Constraint("Horizontal", 0, 3, 1, 3),
    Sketcher.Constraint("Diameter", 0, 5.5),
    Sketcher.Constraint("DistanceX", -1, 1, 0, 3, 93.2),
    Sketcher.Constraint("DistanceY", -1, 1, 0, 3, 63.2),
])
sketch8.setExpression("Constraints[11]", "Params.sketch8_diameter")
pocket4 = body.newObject("PartDesign::Pocket", "Pocket003")
pocket4.Profile = sketch8
pocket4.setExpression("Length", "Params.pocket4_length")
pocket4.Reversed = True

# Sketch on XY plane
sketch9 = body.newObject("Sketcher::SketchObject", "Sketch008")
sketch9.AttachmentSupport = (doc.getObject("XY_Plane"), [""])
sketch9.MapMode = "FlatFace"
sketch9.AttachmentOffset = App.Placement(V(0, 0, -3), App.Rotation())
sketch9.addGeometry([
    Part.LineSegment(V(46.8, 63.4, 0), V(48.6, 66, 0)),  # 0
    Part.LineSegment(V(48.6, 66, 0), V(51.8, 65.8, 0)),  # 1
    Part.LineSegment(V(51.8, 65.8, 0), V(53.2, 63, 0)),  # 2
    Part.LineSegment(V(53.2, 63, 0), V(51.4, 60.4, 0)),  # 3
    Part.LineSegment(V(51.4, 60.4, 0), V(48.2, 60.6, 0)),  # 4
    Part.LineSegment(V(48.2, 60.6, 0), V(46.8, 63.4, 0)),  # 5
    Part.LineSegment(V(-53.2, 63.4, 0), V(-51.4, 66, 0)),  # 6
    Part.LineSegment(V(-51.4, 66, 0), V(-48.2, 65.8, 0)),  # 7
    Part.LineSegment(V(-48.2, 65.8, 0), V(-46.8, 63, 0)),  # 8
    Part.LineSegment(V(-46.8, 63, 0), V(-48.6, 60.4, 0)),  # 9
    Part.LineSegment(V(-48.6, 60.4, 0), V(-51.8, 60.6, 0)),  # 10
    Part.LineSegment(V(-51.8, 60.6, 0), V(-53.2, 63.4, 0)),  # 11
    Part.LineSegment(V(-53.2, -63.4, 0), V(-51.8, -60.6, 0)),  # 12
    Part.LineSegment(V(-51.8, -60.6, 0), V(-48.6, -60.4, 0)),  # 13
    Part.LineSegment(V(-48.6, -60.4, 0), V(-46.8, -63, 0)),  # 14
    Part.LineSegment(V(-46.8, -63, 0), V(-48.2, -65.8, 0)),  # 15
    Part.LineSegment(V(-48.2, -65.8, 0), V(-51.4, -66, 0)),  # 16
    Part.LineSegment(V(-51.4, -66, 0), V(-53.2, -63.4, 0)),  # 17
    Part.LineSegment(V(47, -62.3, 0), V(49.3, -60.1, 0)),  # 18
    Part.LineSegment(V(49.3, -60.1, 0), V(52.3, -61, 0)),  # 19
    Part.LineSegment(V(52.3, -61, 0), V(53, -64.1, 0)),  # 20
    Part.LineSegment(V(53, -64.1, 0), V(50.7, -66.3, 0)),  # 21
    Part.LineSegment(V(50.7, -66.3, 0), V(47.7, -65.4, 0)),  # 22
    Part.LineSegment(V(47.7, -65.4, 0), V(47, -62.3, 0)),  # 23
    Part.LineSegment(V(-96.4, 0, 0), V(-94.8, 2.8, 0)),  # 24
    Part.LineSegment(V(-94.8, 2.8, 0), V(-91.6, 2.8, 0)),  # 25
    Part.LineSegment(V(-91.6, 2.8, 0), V(-90, 0, 0)),  # 26
    Part.LineSegment(V(-90, 0, 0), V(-91.6, -2.8, 0)),  # 27
    Part.LineSegment(V(-91.6, -2.8, 0), V(-94.8, -2.8, 0)),  # 28
    Part.LineSegment(V(-94.8, -2.8, 0), V(-96.4, 0, 0)),  # 29
    Part.LineSegment(V(90, 0, 0), V(91.6, 2.8, 0)),  # 30
    Part.LineSegment(V(91.6, 2.8, 0), V(94.8, 2.8, 0)),  # 31
    Part.LineSegment(V(94.8, 2.8, 0), V(96.4, 0, 0)),  # 32
    Part.LineSegment(V(96.4, 0, 0), V(94.8, -2.8, 0)),  # 33
    Part.LineSegment(V(94.8, -2.8, 0), V(91.6, -2.8, 0)),  # 34
    Part.LineSegment(V(91.6, -2.8, 0), V(90, 0, 0)),  # 35
], False)
sketch9.addConstraint([
    Sketcher.Constraint("Coincident", 0, 2, 1, 1),
    Sketcher.Constraint("Coincident", 1, 2, 2, 1),
    Sketcher.Constraint("Coincident", 2, 2, 3, 1),
    Sketcher.Constraint("Coincident", 3, 2, 4, 1),
    Sketcher.Constraint("Coincident", 4, 2, 5, 1),
    Sketcher.Constraint("Coincident", 5, 2, 0, 1),
    Sketcher.Constraint("Coincident", 6, 2, 7, 1),
    Sketcher.Constraint("Coincident", 7, 2, 8, 1),
    Sketcher.Constraint("Coincident", 8, 2, 9, 1),
    Sketcher.Constraint("Coincident", 9, 2, 10, 1),
    Sketcher.Constraint("Coincident", 10, 2, 11, 1),
    Sketcher.Constraint("Coincident", 11, 2, 6, 1),
    Sketcher.Constraint("Coincident", 12, 2, 13, 1),
    Sketcher.Constraint("Coincident", 13, 2, 14, 1),
    Sketcher.Constraint("Coincident", 14, 2, 15, 1),
    Sketcher.Constraint("Coincident", 15, 2, 16, 1),
    Sketcher.Constraint("Coincident", 16, 2, 17, 1),
    Sketcher.Constraint("Coincident", 17, 2, 12, 1),
    Sketcher.Constraint("Coincident", 18, 2, 19, 1),
    Sketcher.Constraint("Coincident", 19, 2, 20, 1),
    Sketcher.Constraint("Coincident", 20, 2, 21, 1),
    Sketcher.Constraint("Coincident", 21, 2, 22, 1),
    Sketcher.Constraint("Coincident", 22, 2, 23, 1),
    Sketcher.Constraint("Coincident", 23, 2, 18, 1),
    Sketcher.Constraint("Coincident", 24, 2, 25, 1),
    Sketcher.Constraint("Coincident", 25, 2, 26, 1),
    Sketcher.Constraint("Coincident", 26, 2, 27, 1),
    Sketcher.Constraint("Coincident", 27, 2, 28, 1),
    Sketcher.Constraint("Coincident", 28, 2, 29, 1),
    Sketcher.Constraint("Coincident", 29, 2, 24, 1),
    Sketcher.Constraint("Coincident", 30, 2, 31, 1),
    Sketcher.Constraint("Coincident", 31, 2, 32, 1),
    Sketcher.Constraint("Coincident", 32, 2, 33, 1),
    Sketcher.Constraint("Coincident", 33, 2, 34, 1),
    Sketcher.Constraint("Coincident", 34, 2, 35, 1),
    Sketcher.Constraint("Coincident", 35, 2, 30, 1),
    Sketcher.Constraint("Horizontal", 25),
    Sketcher.Constraint("Horizontal", 28),
    Sketcher.Constraint("Horizontal", 31),
    Sketcher.Constraint("Horizontal", 34),
    Sketcher.Constraint("Symmetric", 27, 2, 30, 2, -1, 1),
    Sketcher.Constraint("Symmetric", 29, 2, 32, 2, -1, 1),
    Sketcher.Constraint("Symmetric", 24, 2, 33, 2, -1, 1),
    Sketcher.Constraint("Symmetric", 26, 2, 35, 2, -1, 1),
    Sketcher.Constraint("Symmetric", 25, 2, 30, 2, -2),
    Sketcher.Constraint("Symmetric", 10, 2, 12, 2, -1),
    Sketcher.Constraint("Symmetric", 9, 2, 13, 2, -1),
    Sketcher.Constraint("Symmetric", 8, 2, 14, 2, -1),
    Sketcher.Constraint("Symmetric", 7, 2, 15, 2, -1),
    Sketcher.Constraint("Symmetric", 6, 2, 16, 2, -1),
    Sketcher.Constraint("Symmetric", 11, 2, 17, 2, -1),
    Sketcher.Constraint("PointOnObject", 26, 2, -1),
    Sketcher.Constraint("PointOnObject", 29, 2, -1),
    Sketcher.Constraint("Parallel", 0, 3),
    Sketcher.Constraint("Parallel", 1, 4),
    Sketcher.Constraint("Parallel", 2, 5),
    Sketcher.Constraint("Parallel", 3, 6),
    Sketcher.Constraint("Parallel", 4, 7),
    Sketcher.Constraint("Parallel", 5, 8),
    Sketcher.Constraint("Parallel", 6, 9),
    Sketcher.Constraint("Parallel", 7, 10),
    Sketcher.Constraint("Parallel", 8, 11),
    Sketcher.Constraint("Parallel", 18, 21),
    Sketcher.Constraint("Parallel", 19, 22),
    Sketcher.Constraint("Parallel", 20, 23),
    Sketcher.Constraint("Parallel", 24, 27),
    Sketcher.Constraint("Parallel", 26, 29),
    Sketcher.Constraint("Parallel", 29, 32),
    Sketcher.Constraint("Parallel", 32, 35),
    Sketcher.Constraint("Horizontal", 0, 2, 6, 2),
    Sketcher.Constraint("Horizontal", 1, 2, 7, 2),
    Sketcher.Constraint("Horizontal", 2, 2, 8, 2),
    Sketcher.Constraint("Horizontal", 3, 2, 9, 2),
    Sketcher.Constraint("Horizontal", 4, 2, 10, 2),
    Sketcher.Constraint("Equal", 0, 1),
    Sketcher.Constraint("Equal", 1, 2),
    Sketcher.Constraint("Equal", 2, 3),
    Sketcher.Constraint("Equal", 17, 18),
    Sketcher.Constraint("Equal", 18, 19),
    Sketcher.Constraint("Equal", 19, 20),
    Sketcher.Constraint("Equal", 20, 21),
    Sketcher.Constraint("Equal", 23, 24),
    Sketcher.Constraint("Angle", 24, Q("60 deg")),
    Sketcher.Constraint("DistanceX", 6, 2, 0, 2, 100.0),
    Sketcher.Constraint("DistanceY", 12, 2, 7, 2, 126.4),
    Sketcher.Constraint("DistanceY", 27, 2, 25, 2, 5.5),
    Sketcher.Constraint("DistanceY", 20, 2, 13, 2, 3.776302),
    Sketcher.Constraint("DistanceY", 21, 2, 19, 2, 5.257801),
    Sketcher.Constraint("DistanceX", 25, 1, 25, 2, 3.175426),
    Sketcher.Constraint("DistanceX", -1, 1, 0, 2, 48.588289),
    Sketcher.Constraint("DistanceY", -1, 1, 1, 2, 65.844759),
    Sketcher.Constraint("DistanceX", -1, 1, 3, 2, 51.411711),
    Sketcher.Constraint("DistanceY", 18, 2, -1, 1, 60.10513),
    Sketcher.Constraint("DistanceX", -1, 1, 19, 2, 52.324878),
    Sketcher.Constraint("DistanceY", 19, 2, -1, 1, 61.037068),
    Sketcher.Constraint("DistanceX", -1, 1, 22, 2, 47.675122),
    Sketcher.Constraint("DistanceX", 25, 2, 10, 2, 39.854851),
])
pocket5 = body.newObject("PartDesign::Pocket", "Pocket004")
pocket5.Profile = sketch9
pocket5.Type = "ThroughAll"
pocket5.Reversed = True
doc.recompute()

fillet = body.newObject("PartDesign::Fillet", "Fillet")
fillet.Base = (pocket5, edges_at(pocket5, [
    (-98.2, -68.2, -2.5),
    (-98.2, 68.2, -2.5),
    (98.2, 68.2, -2.5),
    (98.2, -68.2, -2.5),
]))
fillet.setExpression("Radius", "Params.fillet_radius")
doc.recompute()

chamfer5 = body.newObject("PartDesign::Chamfer", "Chamfer004")
chamfer5.Base = (fillet, edges_at(fillet, [
    (-88.2, 0, -5),
    (0, 58.2, -5),
    (88.2, 0, -5),
    (0, -58.2, -5),
    (51.6, -63.2, -5),
    (94.8, 0, -5),
    (51.6, 63.2, -5),
    (-48.4, 63.2, -5),
    (-91.6, 0, -5),
    (-48.4, -63.2, -5),
    (95.95, -63.2, -5),
    (2.75, -63.2, -5),
    (-90.45, -63.2, -5),
    (-90.45, 63.2, -5),
    (2.75, 63.2, -5),
    (95.95, 63.2, -5),
    (98.2, 0, -5),
    (0, 68.2, -5),
    (-98.2, 0, -5),
    (0, -68.2, -5),
    (-96.736, 66.736, -5),
    (-96.736, -66.736, -5),
    (96.736, -66.736, -5),
    (96.736, 66.736, -5),
]))
chamfer5.setExpression("Size", "Params.chamfer5_size")

doc.recompute()
